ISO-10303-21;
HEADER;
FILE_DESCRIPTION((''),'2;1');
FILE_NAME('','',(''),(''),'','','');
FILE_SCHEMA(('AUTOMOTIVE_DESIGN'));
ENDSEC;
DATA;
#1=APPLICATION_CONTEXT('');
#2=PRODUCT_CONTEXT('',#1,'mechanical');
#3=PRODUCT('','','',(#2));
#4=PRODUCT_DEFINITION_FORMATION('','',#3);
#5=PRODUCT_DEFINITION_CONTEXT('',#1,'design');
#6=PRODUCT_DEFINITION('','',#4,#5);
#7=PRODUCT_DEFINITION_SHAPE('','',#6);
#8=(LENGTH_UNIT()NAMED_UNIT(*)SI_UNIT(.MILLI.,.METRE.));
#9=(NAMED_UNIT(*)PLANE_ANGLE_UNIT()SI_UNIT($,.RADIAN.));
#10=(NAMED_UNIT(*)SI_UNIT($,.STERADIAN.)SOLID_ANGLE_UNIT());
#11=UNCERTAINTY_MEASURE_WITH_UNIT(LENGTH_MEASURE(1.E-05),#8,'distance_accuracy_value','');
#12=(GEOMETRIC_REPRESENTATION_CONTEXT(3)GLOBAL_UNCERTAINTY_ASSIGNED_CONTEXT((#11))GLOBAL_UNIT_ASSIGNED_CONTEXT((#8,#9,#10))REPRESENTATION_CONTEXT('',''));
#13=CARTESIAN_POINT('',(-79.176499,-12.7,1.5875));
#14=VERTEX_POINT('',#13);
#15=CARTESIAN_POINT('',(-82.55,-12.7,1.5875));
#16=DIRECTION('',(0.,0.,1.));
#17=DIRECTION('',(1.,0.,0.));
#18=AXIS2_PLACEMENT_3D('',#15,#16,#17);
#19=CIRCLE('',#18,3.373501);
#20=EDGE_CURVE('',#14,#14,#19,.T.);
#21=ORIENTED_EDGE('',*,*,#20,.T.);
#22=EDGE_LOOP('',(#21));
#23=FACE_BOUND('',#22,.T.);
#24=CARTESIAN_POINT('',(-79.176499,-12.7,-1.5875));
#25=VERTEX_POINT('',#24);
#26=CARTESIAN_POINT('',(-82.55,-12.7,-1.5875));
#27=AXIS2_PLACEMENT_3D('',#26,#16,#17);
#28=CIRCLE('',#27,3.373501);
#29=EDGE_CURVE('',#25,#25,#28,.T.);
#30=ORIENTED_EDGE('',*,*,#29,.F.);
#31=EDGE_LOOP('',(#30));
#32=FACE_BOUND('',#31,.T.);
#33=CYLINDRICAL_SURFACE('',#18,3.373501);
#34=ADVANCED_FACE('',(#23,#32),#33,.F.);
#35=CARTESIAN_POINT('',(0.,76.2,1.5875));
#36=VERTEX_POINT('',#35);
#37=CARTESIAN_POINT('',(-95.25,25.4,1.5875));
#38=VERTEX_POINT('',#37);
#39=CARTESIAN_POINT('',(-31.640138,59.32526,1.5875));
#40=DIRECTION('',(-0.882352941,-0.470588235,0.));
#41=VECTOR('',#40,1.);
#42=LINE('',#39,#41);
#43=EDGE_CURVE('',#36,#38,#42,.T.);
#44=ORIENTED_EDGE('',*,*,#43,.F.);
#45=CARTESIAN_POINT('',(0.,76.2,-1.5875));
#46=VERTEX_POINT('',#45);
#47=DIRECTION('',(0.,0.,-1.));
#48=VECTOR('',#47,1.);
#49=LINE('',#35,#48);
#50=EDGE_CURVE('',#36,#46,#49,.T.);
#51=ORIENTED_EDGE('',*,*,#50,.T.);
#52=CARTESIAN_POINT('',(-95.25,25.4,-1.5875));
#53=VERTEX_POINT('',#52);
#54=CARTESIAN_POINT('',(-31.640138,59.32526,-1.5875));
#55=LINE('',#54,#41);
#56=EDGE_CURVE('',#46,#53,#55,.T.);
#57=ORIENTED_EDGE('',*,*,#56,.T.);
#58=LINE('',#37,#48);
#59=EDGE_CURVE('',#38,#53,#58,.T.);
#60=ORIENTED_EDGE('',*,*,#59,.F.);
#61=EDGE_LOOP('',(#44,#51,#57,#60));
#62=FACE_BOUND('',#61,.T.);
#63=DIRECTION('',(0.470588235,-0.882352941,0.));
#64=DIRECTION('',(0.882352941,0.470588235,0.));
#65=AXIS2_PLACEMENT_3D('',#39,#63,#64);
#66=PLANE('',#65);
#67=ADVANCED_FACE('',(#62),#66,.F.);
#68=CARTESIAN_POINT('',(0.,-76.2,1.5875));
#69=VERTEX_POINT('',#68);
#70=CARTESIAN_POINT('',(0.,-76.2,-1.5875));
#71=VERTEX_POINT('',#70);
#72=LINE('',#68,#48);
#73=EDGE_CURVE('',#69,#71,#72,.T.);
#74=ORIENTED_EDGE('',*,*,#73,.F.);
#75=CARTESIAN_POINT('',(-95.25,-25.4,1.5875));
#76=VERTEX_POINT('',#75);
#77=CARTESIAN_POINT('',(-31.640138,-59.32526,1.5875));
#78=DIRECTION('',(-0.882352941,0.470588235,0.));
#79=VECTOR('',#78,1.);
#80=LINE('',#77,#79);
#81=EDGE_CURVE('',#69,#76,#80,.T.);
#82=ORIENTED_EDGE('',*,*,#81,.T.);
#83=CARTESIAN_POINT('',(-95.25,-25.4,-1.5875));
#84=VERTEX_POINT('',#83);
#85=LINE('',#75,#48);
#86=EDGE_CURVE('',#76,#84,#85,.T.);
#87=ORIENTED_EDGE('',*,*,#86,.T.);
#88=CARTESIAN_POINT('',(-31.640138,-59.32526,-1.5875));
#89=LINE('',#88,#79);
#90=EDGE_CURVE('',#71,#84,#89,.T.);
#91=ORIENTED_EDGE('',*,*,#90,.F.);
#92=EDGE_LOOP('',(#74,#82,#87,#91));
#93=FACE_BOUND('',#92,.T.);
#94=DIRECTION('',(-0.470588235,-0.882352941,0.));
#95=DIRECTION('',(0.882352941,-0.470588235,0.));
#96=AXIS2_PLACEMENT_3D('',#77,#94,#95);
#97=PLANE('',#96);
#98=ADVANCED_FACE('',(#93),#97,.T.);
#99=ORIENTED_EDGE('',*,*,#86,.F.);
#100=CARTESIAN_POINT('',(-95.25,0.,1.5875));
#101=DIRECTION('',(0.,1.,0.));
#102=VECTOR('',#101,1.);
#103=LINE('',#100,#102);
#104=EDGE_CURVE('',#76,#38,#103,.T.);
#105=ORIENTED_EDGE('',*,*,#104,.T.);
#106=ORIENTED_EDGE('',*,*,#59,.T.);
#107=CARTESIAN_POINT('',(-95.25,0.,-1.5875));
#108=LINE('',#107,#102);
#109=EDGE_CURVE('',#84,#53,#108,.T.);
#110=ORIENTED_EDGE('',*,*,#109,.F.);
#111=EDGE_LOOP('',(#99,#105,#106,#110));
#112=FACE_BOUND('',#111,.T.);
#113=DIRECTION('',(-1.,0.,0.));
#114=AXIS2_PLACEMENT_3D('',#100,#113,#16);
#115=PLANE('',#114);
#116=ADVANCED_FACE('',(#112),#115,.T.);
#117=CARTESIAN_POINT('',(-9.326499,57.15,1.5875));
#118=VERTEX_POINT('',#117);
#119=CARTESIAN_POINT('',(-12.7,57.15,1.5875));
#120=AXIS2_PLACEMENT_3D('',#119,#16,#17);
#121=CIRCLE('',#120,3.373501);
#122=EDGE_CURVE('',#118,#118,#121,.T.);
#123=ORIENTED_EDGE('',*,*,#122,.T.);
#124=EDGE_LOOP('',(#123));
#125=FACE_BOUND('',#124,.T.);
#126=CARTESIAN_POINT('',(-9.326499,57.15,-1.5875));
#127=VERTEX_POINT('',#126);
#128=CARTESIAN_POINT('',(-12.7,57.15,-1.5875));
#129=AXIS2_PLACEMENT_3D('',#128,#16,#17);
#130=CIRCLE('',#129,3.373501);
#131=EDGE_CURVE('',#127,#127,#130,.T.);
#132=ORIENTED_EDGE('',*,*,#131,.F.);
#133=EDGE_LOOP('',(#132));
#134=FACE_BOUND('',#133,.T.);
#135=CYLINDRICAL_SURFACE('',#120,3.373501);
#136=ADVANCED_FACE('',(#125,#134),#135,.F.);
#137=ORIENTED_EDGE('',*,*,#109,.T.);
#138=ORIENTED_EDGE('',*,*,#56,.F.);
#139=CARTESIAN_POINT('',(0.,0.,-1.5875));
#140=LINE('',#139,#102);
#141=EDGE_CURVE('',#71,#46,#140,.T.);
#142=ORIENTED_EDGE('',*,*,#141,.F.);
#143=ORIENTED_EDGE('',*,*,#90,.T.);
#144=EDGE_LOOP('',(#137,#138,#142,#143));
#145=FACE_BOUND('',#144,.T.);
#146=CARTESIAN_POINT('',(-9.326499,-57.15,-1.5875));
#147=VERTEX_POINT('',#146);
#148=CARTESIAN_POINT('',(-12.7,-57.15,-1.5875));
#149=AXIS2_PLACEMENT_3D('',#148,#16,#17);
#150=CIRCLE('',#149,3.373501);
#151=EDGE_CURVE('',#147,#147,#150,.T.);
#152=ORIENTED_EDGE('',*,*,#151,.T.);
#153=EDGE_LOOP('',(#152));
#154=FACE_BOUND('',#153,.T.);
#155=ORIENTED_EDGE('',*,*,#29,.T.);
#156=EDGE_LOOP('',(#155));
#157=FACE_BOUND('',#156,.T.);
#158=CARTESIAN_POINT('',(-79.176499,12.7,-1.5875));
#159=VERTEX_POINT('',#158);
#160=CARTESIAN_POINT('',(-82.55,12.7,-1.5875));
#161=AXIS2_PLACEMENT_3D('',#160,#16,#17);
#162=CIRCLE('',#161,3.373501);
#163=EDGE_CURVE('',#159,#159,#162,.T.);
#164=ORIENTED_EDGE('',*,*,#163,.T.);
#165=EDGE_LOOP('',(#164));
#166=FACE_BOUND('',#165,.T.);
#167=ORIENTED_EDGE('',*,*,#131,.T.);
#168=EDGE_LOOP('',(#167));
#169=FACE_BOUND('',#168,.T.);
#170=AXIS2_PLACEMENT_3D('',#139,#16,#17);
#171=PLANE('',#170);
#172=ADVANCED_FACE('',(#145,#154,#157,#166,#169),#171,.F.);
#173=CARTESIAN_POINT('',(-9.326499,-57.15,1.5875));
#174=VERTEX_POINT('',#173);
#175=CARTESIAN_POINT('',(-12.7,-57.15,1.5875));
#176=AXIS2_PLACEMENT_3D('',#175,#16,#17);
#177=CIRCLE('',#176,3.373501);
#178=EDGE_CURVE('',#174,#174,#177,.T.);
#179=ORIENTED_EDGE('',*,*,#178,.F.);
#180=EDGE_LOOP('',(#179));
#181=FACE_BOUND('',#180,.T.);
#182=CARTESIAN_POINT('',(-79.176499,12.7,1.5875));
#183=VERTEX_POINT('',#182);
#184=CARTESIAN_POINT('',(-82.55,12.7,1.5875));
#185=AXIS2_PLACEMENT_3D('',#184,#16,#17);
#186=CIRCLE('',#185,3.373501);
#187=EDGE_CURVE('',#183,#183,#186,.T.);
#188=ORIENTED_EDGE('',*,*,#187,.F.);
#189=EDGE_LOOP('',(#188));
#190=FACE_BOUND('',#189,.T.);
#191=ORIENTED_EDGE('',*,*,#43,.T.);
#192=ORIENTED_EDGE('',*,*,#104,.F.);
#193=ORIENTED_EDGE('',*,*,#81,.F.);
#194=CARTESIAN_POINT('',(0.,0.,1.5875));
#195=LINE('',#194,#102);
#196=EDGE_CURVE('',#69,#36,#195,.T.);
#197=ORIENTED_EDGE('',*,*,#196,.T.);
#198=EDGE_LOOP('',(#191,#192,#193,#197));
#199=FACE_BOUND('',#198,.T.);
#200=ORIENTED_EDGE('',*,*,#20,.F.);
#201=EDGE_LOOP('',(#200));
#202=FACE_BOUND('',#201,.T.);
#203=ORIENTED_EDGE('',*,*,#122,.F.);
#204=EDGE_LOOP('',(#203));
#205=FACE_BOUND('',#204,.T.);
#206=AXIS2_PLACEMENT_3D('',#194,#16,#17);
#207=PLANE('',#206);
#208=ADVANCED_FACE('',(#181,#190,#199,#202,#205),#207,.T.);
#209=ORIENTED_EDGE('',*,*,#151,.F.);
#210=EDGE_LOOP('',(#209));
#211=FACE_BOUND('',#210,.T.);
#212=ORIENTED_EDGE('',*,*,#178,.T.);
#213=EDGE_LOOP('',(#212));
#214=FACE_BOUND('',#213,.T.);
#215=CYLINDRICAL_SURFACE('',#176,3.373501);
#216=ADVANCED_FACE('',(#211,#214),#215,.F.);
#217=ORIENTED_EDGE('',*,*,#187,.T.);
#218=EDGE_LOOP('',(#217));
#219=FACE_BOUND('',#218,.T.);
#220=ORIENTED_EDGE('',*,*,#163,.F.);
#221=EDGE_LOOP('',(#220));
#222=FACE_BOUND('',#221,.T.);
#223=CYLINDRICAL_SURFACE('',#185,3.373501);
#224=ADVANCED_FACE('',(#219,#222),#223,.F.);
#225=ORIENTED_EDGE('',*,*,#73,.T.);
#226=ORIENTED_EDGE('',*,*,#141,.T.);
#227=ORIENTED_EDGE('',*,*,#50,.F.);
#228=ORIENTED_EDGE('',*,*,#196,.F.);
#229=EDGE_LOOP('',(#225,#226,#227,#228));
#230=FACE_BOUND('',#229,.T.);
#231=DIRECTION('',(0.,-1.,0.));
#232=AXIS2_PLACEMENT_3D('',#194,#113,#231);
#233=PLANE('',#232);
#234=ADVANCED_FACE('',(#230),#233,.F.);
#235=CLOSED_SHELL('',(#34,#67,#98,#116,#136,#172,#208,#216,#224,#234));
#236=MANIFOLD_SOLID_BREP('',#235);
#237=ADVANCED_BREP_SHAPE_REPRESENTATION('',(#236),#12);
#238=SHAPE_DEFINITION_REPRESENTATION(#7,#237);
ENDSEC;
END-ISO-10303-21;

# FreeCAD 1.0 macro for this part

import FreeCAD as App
import Part
import Sketcher
Q = App.Units.Quantity

doc = App.newDocument("Part")
body = doc.addObject("PartDesign::Body", "Body")

sketch1 = doc.addObject("Sketcher::SketchObject", "Sketch")
body.addObject(sketch1)
sketch1.AttachmentSupport = (doc.XY_Plane, [""])
sketch1.MapMode = "FlatFace"
sketch1.addGeometry([
    Part.LineSegment(App.Vector(-95, 25, 0), App.Vector(-95, -25, 0)),
    Part.LineSegment(App.Vector(-95, -25, 0), App.Vector(0, -76, 0)),
    Part.LineSegment(App.Vector(0, -76, 0), App.Vector(0, 76, 0)),
    Part.LineSegment(App.Vector(0, 76, 0), App.Vector(-95, 25, 0)),
], False)
sketch1.addConstraint([
    Sketcher.Constraint("Coincident", 0, 2, 1, 1),
    Sketcher.Constraint("Coincident", 1, 2, 2, 1),
    Sketcher.Constraint("Coincident", 2, 2, 3, 1),
    Sketcher.Constraint("Coincident", 3, 2, 0, 1),
    Sketcher.Constraint("Vertical", 0),
    Sketcher.Constraint("Vertical", 2),
    Sketcher.Constraint("Symmetric", 1, 2, 2, 2, -1, 1),
    Sketcher.Constraint("Equal", 1, 3),
    Sketcher.Constraint("DistanceY", 0, 2, 0, 1, Q("2 in")),
    Sketcher.Constraint("DistanceY", 2, 1, 2, 2, Q("6 in")),
    Sketcher.Constraint("Distance", 1, Q("4.25 in")),
])
pad1 = doc.addObject("PartDesign::Pad", "Pad")
body.addObject(pad1)
pad1.Profile = sketch1
pad1.Length = Q("0.125 in")
pad1.Midplane = True

sketch2 = doc.addObject("Sketcher::SketchObject", "Sketch001")
body.addObject(sketch2)
sketch2.AttachmentSupport = (doc.XY_Plane, [""])
sketch2.MapMode = "FlatFace"
sketch2.AttachmentOffset = App.Placement(App.Vector(0, 0, 0.0625 * 25.4), App.Rotation())
sketch2.addGeometry([
    Part.Circle(App.Vector(-82.5, 12.7, 0), App.Vector(0, 0, 1), 3.4),
    Part.Circle(App.Vector(-82.5, -12.7, 0), App.Vector(0, 0, 1), 3.4),
    Part.Circle(App.Vector(-12.7, -57.1, 0), App.Vector(0, 0, 1), 3.4),
    Part.Circle(App.Vector(-12.7, 57.1, 0), App.Vector(0, 0, 1), 3.4),
], False)
sketch2.addConstraint([
    Sketcher.Constraint("Equal", 0, 1),
    Sketcher.Constraint("Equal", 1, 2),
    Sketcher.Constraint("Equal", 2, 3),
    Sketcher.Constraint("Symmetric", 0, 3, 1, 3, -1),
    Sketcher.Constraint("Symmetric", 2, 3, 3, 3, -1),
    Sketcher.Constraint("DistanceY", 1, 3, 0, 3, Q("1 in")),
    Sketcher.Constraint("DistanceX", 2, 3, -1, 1, Q("0.5 in")),
    Sketcher.Constraint("DistanceY", 2, 3, 3, 3, Q("4.5 in")),
    Sketcher.Constraint("DistanceX", 0, 3, -1, 1, Q("3.25 in")),
    Sketcher.Constraint("Diameter", 0, 6.747002),
])
doc.recompute()
hole = doc.addObject("PartDesign::Hole", "Hole")
body.addObject(hole)
hole.Profile = sketch2
hole.ThreadType = "None"
hole.Diameter = 6.747002
hole.DepthType = "ThroughAll"

doc.recompute()
